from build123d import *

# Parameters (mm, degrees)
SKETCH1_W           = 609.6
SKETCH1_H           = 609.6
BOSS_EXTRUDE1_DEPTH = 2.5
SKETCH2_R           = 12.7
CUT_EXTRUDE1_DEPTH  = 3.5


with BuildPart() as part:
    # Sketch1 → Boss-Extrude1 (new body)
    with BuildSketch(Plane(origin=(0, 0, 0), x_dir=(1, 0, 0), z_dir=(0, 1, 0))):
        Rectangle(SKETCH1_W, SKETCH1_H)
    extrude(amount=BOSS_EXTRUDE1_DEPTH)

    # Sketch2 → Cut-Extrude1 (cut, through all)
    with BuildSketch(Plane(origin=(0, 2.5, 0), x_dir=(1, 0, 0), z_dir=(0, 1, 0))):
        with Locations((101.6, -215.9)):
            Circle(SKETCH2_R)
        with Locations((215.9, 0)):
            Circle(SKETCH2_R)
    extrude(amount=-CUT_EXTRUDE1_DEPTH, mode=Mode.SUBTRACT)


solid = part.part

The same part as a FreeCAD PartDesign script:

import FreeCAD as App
import Part
import Sketcher
Q = App.Units.Quantity


def add_polygon(sketch, points):
    """Adds a closed chain of lines whose ends are joined by coincident constraints."""
    first, n = sketch.GeometryCount, len(points)
    for a, b in zip(points, points[1:] + points[:1]):
        sketch.addGeometry(Part.LineSegment(App.Vector(*a, 0), App.Vector(*b, 0)), False)
    for i in range(n):
        sketch.addConstraint(Sketcher.Constraint("Coincident", first + i, 2, first + (i + 1) % n, 1))

doc = App.newDocument("Part")
params = doc.addObject("Spreadsheet::Sheet", "Params")
for row, (alias, value) in enumerate([
    ("sketch1_width", "609.6 mm"),
    ("pad1_length", "2.5 mm"),
    ("sketch2_diameter", "25.4 mm"),
], start=1):
    params.set(f"A{row}", alias)
    params.set(f"B{row}", "=" + value)
    params.setAlias(f"B{row}", alias)

body = doc.addObject("PartDesign::Body", "Body")

# Sketch on XZ plane
sketch1 = doc.addObject("Sketcher::SketchObject", "Sketch")
body.addObject(sketch1)
sketch1.AttachmentSupport = (doc.XZ_Plane, [""])
sketch1.MapMode = "FlatFace"
add_polygon(sketch1, [(-305, -305), (-305, 305), (305, 305), (305, -305)])  # lines 0-3
sketch1.addConstraint([
    Sketcher.Constraint("Vertical", 0),
    Sketcher.Constraint("Horizontal", 1),
    Sketcher.Constraint("Vertical", 2),
    Sketcher.Constraint("Horizontal", 3),
    Sketcher.Constraint("Symmetric", 0, 2, 2, 2, -1, 1),
    Sketcher.Constraint("Equal", 3, 0),
    Sketcher.Constraint("DistanceX", 1, 1, 1, 2, Q("609.6 mm")),
])
sketch1.setExpression("Constraints[10]", "Params.sketch1_width")
pad1 = doc.addObject("PartDesign::Pad", "Pad")
body.addObject(pad1)
pad1.Profile = sketch1
pad1.setExpression("Length", "Params.pad1_length")
pad1.Reversed = True

# Sketch on XZ plane
sketch2 = doc.addObject("Sketcher::SketchObject", "Sketch001")
body.addObject(sketch2)
sketch2.AttachmentSupport = (doc.XZ_Plane, [""])
sketch2.MapMode = "FlatFace"
sketch2.AttachmentOffset = App.Placement(App.Vector(0, 0, -2.5), App.Rotation())
sketch2.addGeometry([
    Part.Circle(App.Vector(102, 216, 0), App.Vector(0, 0, 1), 13),
    Part.Circle(App.Vector(216, 0, 0), App.Vector(0, 0, 1), 13),
], False)
sketch2.addConstraint([
    Sketcher.Constraint("Equal", 0, 1),
    Sketcher.Constraint("PointOnObject", 1, 3, -1),
    Sketcher.Constraint("Diameter", 0, Q("25.4 mm")),
    Sketcher.Constraint("DistanceX", -1, 1, 0, 3, Q("101.6 mm")),
    Sketcher.Constraint("DistanceY", -1, 1, 0, 3, Q("215.9 mm")),
    Sketcher.Constraint("DistanceX", -1, 1, 1, 3, Q("215.9 mm")),
])
sketch2.setExpression("Constraints[2]", "Params.sketch2_diameter")
pocket1 = doc.addObject("PartDesign::Pocket", "Pocket")
body.addObject(pocket1)
pocket1.Profile = sketch2
pocket1.Type = "ThroughAll"
pocket1.Reversed = True

doc.recompute()
